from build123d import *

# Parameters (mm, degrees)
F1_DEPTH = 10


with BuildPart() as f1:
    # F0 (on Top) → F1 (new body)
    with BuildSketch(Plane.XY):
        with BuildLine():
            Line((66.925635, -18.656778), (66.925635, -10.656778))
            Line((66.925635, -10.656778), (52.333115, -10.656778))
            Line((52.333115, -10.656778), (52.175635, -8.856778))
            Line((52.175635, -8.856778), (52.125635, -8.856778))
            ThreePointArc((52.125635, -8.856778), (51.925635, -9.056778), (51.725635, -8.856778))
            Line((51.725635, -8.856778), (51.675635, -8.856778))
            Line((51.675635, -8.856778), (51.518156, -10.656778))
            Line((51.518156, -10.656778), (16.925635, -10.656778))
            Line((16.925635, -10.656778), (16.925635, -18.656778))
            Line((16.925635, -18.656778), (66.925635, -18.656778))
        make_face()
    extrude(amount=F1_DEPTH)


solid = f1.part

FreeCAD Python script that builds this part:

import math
import FreeCAD as App
import Part
import Sketcher
Q = App.Units.Quantity

doc = App.newDocument("Part")
body = doc.addObject("PartDesign::Body", "Body")

sketch1 = body.newObject("Sketcher::SketchObject", "Sketch")
sketch1.AttachmentSupport = (doc.getObject("XY_Plane"), [""])
sketch1.MapMode = "FlatFace"
sketch1.addGeometry([
    Part.LineSegment(App.Vector(66.926, -18.657, 0), App.Vector(66.926, -10.657, 0)),
    Part.LineSegment(App.Vector(66.926, -10.657, 0), App.Vector(52.333, -10.657, 0)),
    Part.LineSegment(App.Vector(52.333, -10.657, 0), App.Vector(52.176, -8.857, 0)),
    Part.LineSegment(App.Vector(52.176, -8.857, 0), App.Vector(52.126, -8.857, 0)),
    Part.ArcOfCircle(Part.Circle(App.Vector(51.926, -8.857, 0), App.Vector(0, 0, 1), 0.2), math.radians(180), math.radians(360)),
    Part.LineSegment(App.Vector(51.726, -8.857, 0), App.Vector(51.676, -8.857, 0)),
    Part.LineSegment(App.Vector(51.676, -8.857, 0), App.Vector(51.518, -10.657, 0)),
    Part.LineSegment(App.Vector(51.518, -10.657, 0), App.Vector(16.926, -10.657, 0)),
    Part.LineSegment(App.Vector(16.926, -10.657, 0), App.Vector(16.926, -18.657, 0)),
    Part.LineSegment(App.Vector(16.926, -18.657, 0), App.Vector(66.926, -18.657, 0)),
], False)
sketch1.addConstraint([
    Sketcher.Constraint("Coincident", 0, 2, 1, 1),
    Sketcher.Constraint("Coincident", 1, 2, 2, 1),
    Sketcher.Constraint("Coincident", 2, 2, 3, 1),
    Sketcher.Constraint("Coincident", 3, 2, 4, 2),
    Sketcher.Constraint("Coincident", 4, 1, 5, 1),
    Sketcher.Constraint("Coincident", 5, 2, 6, 1),
    Sketcher.Constraint("Coincident", 6, 2, 7, 1),
    Sketcher.Constraint("Coincident", 7, 2, 8, 1),
    Sketcher.Constraint("Coincident", 8, 2, 9, 1),
    Sketcher.Constraint("Coincident", 9, 2, 0, 1),
    Sketcher.Constraint("Vertical", 0),
    Sketcher.Constraint("Horizontal", 1),
    Sketcher.Constraint("Horizontal", 3),
    Sketcher.Constraint("Horizontal", 5),
    Sketcher.Constraint("Horizontal", 7),
    Sketcher.Constraint("Vertical", 8),
    Sketcher.Constraint("Horizontal", 9),
    Sketcher.Constraint("Horizontal", 4, 3, 2, 2),
    Sketcher.Constraint("Horizontal", 3, 2, 4, 1),
    Sketcher.Constraint("Horizontal", 1, 2, 6, 2),
    Sketcher.Constraint("Equal", 3, 5),
    Sketcher.Constraint("Equal", 2, 6),
    Sketcher.Constraint("Radius", 4, 0.2),
    Sketcher.Constraint("DistanceX", 9, 1, 9, 2, 50.0),
    Sketcher.Constraint("DistanceY", 0, 1, 0, 2, 8.0),
    Sketcher.Constraint("Angle", 2, Q("95.000013 deg")),
    Sketcher.Constraint("DistanceX", 4, 3, 0, 2, 15.0),
    Sketcher.Constraint("DistanceX", 3, 2, 3, 1, 0.05),
    Sketcher.Constraint("DistanceY", 0, 2, 4, 3, 1.8),
    Sketcher.Constraint("DistanceX", -1, 1, 4, 3, 51.925635),
    Sketcher.Constraint("DistanceY", 4, 3, -1, 1, 8.856778),
])
pad1 = body.newObject("PartDesign::Pad", "Pad")
pad1.Profile = sketch1
pad1.Length = 10

doc.recompute()
